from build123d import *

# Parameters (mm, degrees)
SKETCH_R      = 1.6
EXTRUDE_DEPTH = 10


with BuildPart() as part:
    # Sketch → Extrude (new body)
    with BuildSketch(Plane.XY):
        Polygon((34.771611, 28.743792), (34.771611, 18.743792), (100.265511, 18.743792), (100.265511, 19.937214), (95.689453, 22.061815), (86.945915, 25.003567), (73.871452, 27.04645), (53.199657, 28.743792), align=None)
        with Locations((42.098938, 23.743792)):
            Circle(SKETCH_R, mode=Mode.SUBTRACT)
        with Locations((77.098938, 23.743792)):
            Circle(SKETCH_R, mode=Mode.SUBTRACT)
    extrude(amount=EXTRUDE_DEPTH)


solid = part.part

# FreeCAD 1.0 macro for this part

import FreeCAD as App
import Part
import Sketcher
from FreeCAD import Vector
Q = App.Units.Quantity


def add_polygon(sketch, points):
    """Adds a closed chain of lines whose ends are joined by coincident constraints."""
    first, n = sketch.GeometryCount, len(points)
    for a, b in zip(points, points[1:] + points[:1]):
        sketch.addGeometry(Part.LineSegment(App.Vector(*a, 0), App.Vector(*b, 0)), False)
    for i in range(n):
        sketch.addConstraint(Sketcher.Constraint("Coincident", first + i, 2, first + (i + 1) % n, 1))

doc = App.newDocument("Part")
body = doc.addObject("PartDesign::Body", "Body")

sketch1 = doc.addObject("Sketcher::SketchObject", "Sketch")
body.addObject(sketch1)
sketch1.AttachmentSupport = (doc.XY_Plane, [""])
sketch1.MapMode = "FlatFace"
add_polygon(sketch1, [(34.8, 28.7), (34.8, 18.7), (100.3, 18.7), (100.3, 19.9), (95.7, 22.1), (86.9, 25), (73.9, 27), (53.2, 28.7)])
sketch1.addGeometry(Part.Circle(Vector(42.1, 23.7, 0), Vector(0, 0, 1), 1.6), False)
sketch1.addGeometry(Part.Circle(Vector(77.1, 23.7, 0), Vector(0, 0, 1), 1.6), False)
sketch1.addConstraint(Sketcher.Constraint("Vertical", 0))
sketch1.addConstraint(Sketcher.Constraint("Horizontal", 1))
sketch1.addConstraint(Sketcher.Constraint("Vertical", 2))
sketch1.addConstraint(Sketcher.Constraint("Horizontal", 7))
sketch1.addConstraint(Sketcher.Constraint("Equal", 8, 9))
sketch1.addConstraint(Sketcher.Constraint("Horizontal", 8, 3, 9, 3))
sketch1.addConstraint(Sketcher.Constraint("Diameter", 8, Q("3.2 mm")))
sketch1.addConstraint(Sketcher.Constraint("DistanceY", 0, 2, 0, 1, Q("10 mm")))
sketch1.addConstraint(Sketcher.Constraint("DistanceX", 8, 3, 9, 3, Q("35 mm")))
sketch1.addConstraint(Sketcher.Constraint("DistanceY", 0, 2, 8, 3, Q("5 mm")))
sketch1.addConstraint(Sketcher.Constraint("DistanceX", 1, 1, 1, 2, Q("65.4939 mm")))
sketch1.addConstraint(Sketcher.Constraint("DistanceX", 5, 2, 3, 2, Q("21.818001 mm")))
sketch1.addConstraint(Sketcher.Constraint("Distance", 5, Q("13.233101 mm")))
sketch1.addConstraint(Sketcher.Constraint("DistanceY", 2, 2, 3, 2, Q("2.124601 mm")))
sketch1.addConstraint(Sketcher.Constraint("Distance", 3, Q("5.045219 mm")))
sketch1.addConstraint(Sketcher.Constraint("Distance", 4, Q("9.225148 mm")))
sketch1.addConstraint(Sketcher.Constraint("Distance", 6, Q("20.741362 mm")))
sketch1.addConstraint(Sketcher.Constraint("DistanceX", 7, 2, 7, 1, Q("18.428046 mm")))
sketch1.addConstraint(Sketcher.Constraint("DistanceY", 2, 1, 2, 2, Q("1.193422 mm")))
sketch1.addConstraint(Sketcher.Constraint("DistanceY", -1, 1, 8, 3, Q("23.743792 mm")))
sketch1.addConstraint(Sketcher.Constraint("DistanceX", -1, 1, 9, 3, Q("77.098938 mm")))
sketch1.addConstraint(Sketcher.Constraint("DistanceX", -1, 1, 0, 2, Q("34.771611 mm")))
pad1 = doc.addObject("PartDesign::Pad", "Pad")
body.addObject(pad1)
pad1.Profile = sketch1
pad1.Length = 10

doc.recompute()
